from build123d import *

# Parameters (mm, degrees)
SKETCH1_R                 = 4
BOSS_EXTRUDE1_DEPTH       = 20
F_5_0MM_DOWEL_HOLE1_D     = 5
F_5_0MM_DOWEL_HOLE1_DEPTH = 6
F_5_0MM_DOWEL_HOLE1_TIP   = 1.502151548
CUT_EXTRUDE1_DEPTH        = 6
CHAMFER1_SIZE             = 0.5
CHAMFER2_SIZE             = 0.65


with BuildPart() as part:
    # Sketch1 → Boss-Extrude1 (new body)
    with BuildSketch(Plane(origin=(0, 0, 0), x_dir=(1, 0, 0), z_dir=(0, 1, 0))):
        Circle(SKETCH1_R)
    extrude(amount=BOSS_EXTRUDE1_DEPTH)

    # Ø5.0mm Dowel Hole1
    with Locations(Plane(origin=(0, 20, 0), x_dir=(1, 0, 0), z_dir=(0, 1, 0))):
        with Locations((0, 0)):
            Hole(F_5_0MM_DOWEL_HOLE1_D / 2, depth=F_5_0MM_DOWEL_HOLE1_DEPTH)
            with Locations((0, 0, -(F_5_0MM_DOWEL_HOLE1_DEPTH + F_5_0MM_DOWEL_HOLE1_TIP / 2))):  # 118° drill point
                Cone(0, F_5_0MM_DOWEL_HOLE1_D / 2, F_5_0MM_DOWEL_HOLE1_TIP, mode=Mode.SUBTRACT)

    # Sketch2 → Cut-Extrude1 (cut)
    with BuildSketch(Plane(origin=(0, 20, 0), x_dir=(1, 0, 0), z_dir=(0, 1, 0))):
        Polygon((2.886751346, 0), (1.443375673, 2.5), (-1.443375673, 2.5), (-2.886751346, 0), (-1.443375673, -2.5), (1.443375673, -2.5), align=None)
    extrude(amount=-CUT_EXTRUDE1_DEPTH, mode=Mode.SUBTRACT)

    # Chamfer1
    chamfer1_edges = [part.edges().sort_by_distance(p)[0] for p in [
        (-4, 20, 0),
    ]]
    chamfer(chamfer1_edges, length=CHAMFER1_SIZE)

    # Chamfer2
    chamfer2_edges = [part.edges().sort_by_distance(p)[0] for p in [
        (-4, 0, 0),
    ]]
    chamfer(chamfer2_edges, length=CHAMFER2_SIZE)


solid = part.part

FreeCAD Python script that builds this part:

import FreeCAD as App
import Part
import Sketcher
Q = App.Units.Quantity


def edges_at(feature, points):
    """Names of the edges that pass closest to the given points."""
    edges = feature.Shape.Edges
    near = lambda p: min(range(len(edges)), key=lambda i: edges[i].distToShape(Part.Vertex(*p))[0])
    return sorted({f"Edge{near(p) + 1}" for p in points})

doc = App.newDocument("Part")
body = doc.addObject("PartDesign::Body", "Body")

# Sketch on XZ plane
sketch1 = body.newObject("Sketcher::SketchObject", "Sketch")
sketch1.AttachmentSupport = (doc.getObject("XZ_Plane"), [""])
sketch1.MapMode = "FlatFace"
sketch1.addGeometry(Part.Circle(App.Vector(0, 0, 0), App.Vector(0, 0, 1), 4), False)
sketch1.addConstraint(Sketcher.Constraint("Coincident", 0, 3, -1, 1))
sketch1.addConstraint(Sketcher.Constraint("Diameter", 0, 8.0))
pad1 = body.newObject("PartDesign::Pad", "Pad")
pad1.Profile = sketch1
pad1.Length = 20
pad1.Reversed = True

# Sketch on XZ plane
sketch2 = body.newObject("Sketcher::SketchObject", "Sketch001")
sketch2.AttachmentSupport = (doc.getObject("XZ_Plane"), [""])
sketch2.MapMode = "FlatFace"
sketch2.AttachmentOffset = App.Placement(App.Vector(0, 0, -20), App.Rotation())
sketch2.addGeometry(Part.Circle(App.Vector(0, 0, 0), App.Vector(0, 0, 1), 2.5), False)
sketch2.addConstraint(Sketcher.Constraint("Coincident", 0, 3, -1, 1))
sketch2.addConstraint(Sketcher.Constraint("Diameter", 0, 5.0))
doc.recompute()
hole = body.newObject("PartDesign::Hole", "Hole")
hole.Profile = sketch2
hole.ThreadType = "None"
hole.Diameter = 5
hole.DepthType = "Dimension"
hole.Depth = 6
hole.DrillPoint = "Angled"
hole.DrillPointAngle = 118
hole.Reversed = True

# Sketch on XZ plane
sketch3 = body.newObject("Sketcher::SketchObject", "Sketch002")
sketch3.AttachmentSupport = (doc.getObject("XZ_Plane"), [""])
sketch3.MapMode = "FlatFace"
sketch3.AttachmentOffset = App.Placement(App.Vector(0, 0, -20), App.Rotation())
sketch3.addGeometry(Part.LineSegment(App.Vector(2.9, 0, 0), App.Vector(1.4, -2.5, 0)), False)
sketch3.addGeometry(Part.LineSegment(App.Vector(1.4, -2.5, 0), App.Vector(-1.4, -2.5, 0)), False)
sketch3.addGeometry(Part.LineSegment(App.Vector(-1.4, -2.5, 0), App.Vector(-2.9, 0, 0)), False)
sketch3.addGeometry(Part.LineSegment(App.Vector(-2.9, 0, 0), App.Vector(-1.4, 2.5, 0)), False)
sketch3.addGeometry(Part.LineSegment(App.Vector(-1.4, 2.5, 0), App.Vector(1.4, 2.5, 0)), False)
sketch3.addGeometry(Part.LineSegment(App.Vector(1.4, 2.5, 0), App.Vector(2.9, 0, 0)), False)
sketch3.addConstraint(Sketcher.Constraint("Coincident", 0, 2, 1, 1))
sketch3.addConstraint(Sketcher.Constraint("Coincident", 1, 2, 2, 1))
sketch3.addConstraint(Sketcher.Constraint("Coincident", 2, 2, 3, 1))
sketch3.addConstraint(Sketcher.Constraint("Coincident", 3, 2, 4, 1))
sketch3.addConstraint(Sketcher.Constraint("Coincident", 4, 2, 5, 1))
sketch3.addConstraint(Sketcher.Constraint("Coincident", 5, 2, 0, 1))
sketch3.addConstraint(Sketcher.Constraint("Horizontal", 1))
sketch3.addConstraint(Sketcher.Constraint("Horizontal", 4))
sketch3.addConstraint(Sketcher.Constraint("Symmetric", 0, 2, 3, 2, -1, 1))
sketch3.addConstraint(Sketcher.Constraint("Symmetric", 2, 2, 5, 2, -1, 1))
sketch3.addConstraint(Sketcher.Constraint("PointOnObject", 2, 2, -1))
sketch3.addConstraint(Sketcher.Constraint("Parallel", 2, 5))
sketch3.addConstraint(Sketcher.Constraint("Vertical", 1, 2, 3, 2))
sketch3.addConstraint(Sketcher.Constraint("Angle", 0, Q("-120 deg")))
sketch3.addConstraint(Sketcher.Constraint("DistanceY", 1, 2, 3, 2, 5.0))
sketch3.addConstraint(Sketcher.Constraint("DistanceX", 1, 2, 1, 1, 2.886751))
pocket1 = body.newObject("PartDesign::Pocket", "Pocket")
pocket1.Profile = sketch3
pocket1.Length = 6
pocket1.Reversed = True
doc.recompute()

chamfer = body.newObject("PartDesign::Chamfer", "Chamfer")
chamfer.Base = (pocket1, edges_at(pocket1, [(-4, 20, 0)]))
chamfer.Size = 0.5
doc.recompute()

chamfer2 = body.newObject("PartDesign::Chamfer", "Chamfer001")
chamfer2.Base = (chamfer, edges_at(chamfer, [(-4, 0, 0)]))
chamfer2.Size = 0.65

doc.recompute()
